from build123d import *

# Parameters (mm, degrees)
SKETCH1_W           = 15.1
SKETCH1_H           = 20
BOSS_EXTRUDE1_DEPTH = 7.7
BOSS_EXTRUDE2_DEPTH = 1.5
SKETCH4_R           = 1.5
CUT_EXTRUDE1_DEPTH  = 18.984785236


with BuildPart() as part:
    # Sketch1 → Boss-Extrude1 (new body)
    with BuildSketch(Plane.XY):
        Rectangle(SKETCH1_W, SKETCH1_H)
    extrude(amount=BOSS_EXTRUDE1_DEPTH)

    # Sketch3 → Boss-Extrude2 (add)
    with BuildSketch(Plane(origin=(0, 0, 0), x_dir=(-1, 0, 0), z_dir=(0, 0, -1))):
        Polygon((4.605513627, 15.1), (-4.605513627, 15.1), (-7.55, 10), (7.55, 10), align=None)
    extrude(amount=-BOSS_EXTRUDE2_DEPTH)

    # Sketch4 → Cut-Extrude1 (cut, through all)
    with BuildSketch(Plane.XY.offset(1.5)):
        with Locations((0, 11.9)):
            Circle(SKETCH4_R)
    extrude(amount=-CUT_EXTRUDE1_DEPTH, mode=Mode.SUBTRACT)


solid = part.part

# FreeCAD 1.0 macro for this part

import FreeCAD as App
import Part
import Sketcher
Q = App.Units.Quantity


def add_polygon(sketch, points):
    """Adds a closed chain of lines whose ends are joined by coincident constraints."""
    first, n = sketch.GeometryCount, len(points)
    for a, b in zip(points, points[1:] + points[:1]):
        sketch.addGeometry(Part.LineSegment(App.Vector(*a, 0), App.Vector(*b, 0)), False)
    for i in range(n):
        sketch.addConstraint(Sketcher.Constraint("Coincident", first + i, 2, first + (i + 1) % n, 1))

doc = App.newDocument("Part")
params = doc.addObject("Spreadsheet::Sheet", "Params")
for row, (alias, value) in enumerate([
    ("sketch1_height", "20 mm"),
    ("sketch1_width", "15.1 mm"),
    ("pad1_length", "7.7 mm"),
    ("sketch2_width", "15.1 mm"),
    ("pad2_length", "1.5 mm"),
    ("sketch3_diameter", "3 mm"),
], start=1):
    params.set(f"A{row}", alias)
    params.set(f"B{row}", "=" + value)
    params.setAlias(f"B{row}", alias)

body = doc.addObject("PartDesign::Body", "Body")

# Sketch on XY plane
sketch1 = body.newObject("Sketcher::SketchObject", "Sketch")
sketch1.AttachmentSupport = (doc.getObject("XY_Plane"), [""])
sketch1.MapMode = "FlatFace"
add_polygon(sketch1, [(-8, 10), (-8, -10), (8, -10), (8, 10)])  # lines 0-3
sketch1.addConstraint([
    Sketcher.Constraint("Vertical", 0),
    Sketcher.Constraint("Horizontal", 1),
    Sketcher.Constraint("Vertical", 2),
    Sketcher.Constraint("Horizontal", 3),
    Sketcher.Constraint("Symmetric", 0, 2, 2, 2, -1, 1),
    Sketcher.Constraint("DistanceY", 0, 2, 0, 1, 20.0),
    Sketcher.Constraint("DistanceX", 1, 1, 1, 2, 15.1),
])
sketch1.setExpression("Constraints[9]", "Params.sketch1_height")
sketch1.setExpression("Constraints[10]", "Params.sketch1_width")
pad1 = body.newObject("PartDesign::Pad", "Pad")
pad1.Profile = sketch1
pad1.setExpression("Length", "Params.pad1_length")

# Sketch on XY plane
sketch2 = body.newObject("Sketcher::SketchObject", "Sketch001")
sketch2.AttachmentSupport = (doc.getObject("XY_Plane"), [""])
sketch2.MapMode = "FlatFace"
add_polygon(sketch2, [(-5, 15), (5, 15), (8, 10), (-8, 10)])  # lines 0-3
sketch2.addConstraint([
    Sketcher.Constraint("Horizontal", 0),
    Sketcher.Constraint("Horizontal", 2),
    Sketcher.Constraint("Equal", 1, 3),
    Sketcher.Constraint("Angle", 1, Q("-60 deg")),
    Sketcher.Constraint("DistanceX", 2, 2, 2, 1, 15.1),
    Sketcher.Constraint("DistanceY", -1, 1, 1, 2, 10.0),
    Sketcher.Constraint("DistanceY", -1, 1, 0, 2, 15.1),
    Sketcher.Constraint("DistanceX", -1, 1, 1, 2, 7.55),
])
sketch2.setExpression("Constraints[8]", "Params.sketch2_width")
pad2 = body.newObject("PartDesign::Pad", "Pad001")
pad2.Profile = sketch2
pad2.setExpression("Length", "Params.pad2_length")

# Sketch on XY plane
sketch3 = body.newObject("Sketcher::SketchObject", "Sketch002")
sketch3.AttachmentSupport = (doc.getObject("XY_Plane"), [""])
sketch3.MapMode = "FlatFace"
sketch3.AttachmentOffset = App.Placement(App.Vector(0, 0, 1.5), App.Rotation())
sketch3.addGeometry(Part.Circle(App.Vector(0, 11.9, 0), App.Vector(0, 0, 1), 1.5), False)
sketch3.addConstraint([
    Sketcher.Constraint("PointOnObject", 0, 3, -2),
    Sketcher.Constraint("Diameter", 0, 3.0),
    Sketcher.Constraint("DistanceY", -1, 1, 0, 3, 11.9),
])
sketch3.setExpression("Constraints[1]", "Params.sketch3_diameter")
pocket1 = body.newObject("PartDesign::Pocket", "Pocket")
pocket1.Profile = sketch3
pocket1.Type = "ThroughAll"

doc.recompute()
